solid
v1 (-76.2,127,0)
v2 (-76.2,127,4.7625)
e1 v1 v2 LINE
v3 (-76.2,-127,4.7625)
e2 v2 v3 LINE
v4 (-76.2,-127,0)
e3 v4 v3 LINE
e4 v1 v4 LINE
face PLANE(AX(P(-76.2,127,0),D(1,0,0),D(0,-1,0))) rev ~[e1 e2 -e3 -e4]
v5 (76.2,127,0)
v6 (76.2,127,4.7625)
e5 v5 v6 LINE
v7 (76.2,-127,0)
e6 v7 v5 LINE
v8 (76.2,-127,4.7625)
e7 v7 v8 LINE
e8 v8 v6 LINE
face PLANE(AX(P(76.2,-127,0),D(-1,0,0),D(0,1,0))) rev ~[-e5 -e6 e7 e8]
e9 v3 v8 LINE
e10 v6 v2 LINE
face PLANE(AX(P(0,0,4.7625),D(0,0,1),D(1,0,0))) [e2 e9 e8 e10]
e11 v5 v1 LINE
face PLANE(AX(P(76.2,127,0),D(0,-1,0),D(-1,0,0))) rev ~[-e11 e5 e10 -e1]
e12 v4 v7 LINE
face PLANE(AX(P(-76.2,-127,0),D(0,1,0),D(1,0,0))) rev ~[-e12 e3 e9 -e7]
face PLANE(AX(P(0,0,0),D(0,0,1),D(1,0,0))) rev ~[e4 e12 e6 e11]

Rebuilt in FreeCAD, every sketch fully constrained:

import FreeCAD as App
import Part
import Sketcher
from FreeCAD import Vector
Q = App.Units.Quantity


def add_polygon(sketch, points):
    """Adds a closed chain of lines whose ends are joined by coincident constraints."""
    first, n = sketch.GeometryCount, len(points)
    for a, b in zip(points, points[1:] + points[:1]):
        sketch.addGeometry(Part.LineSegment(App.Vector(*a, 0), App.Vector(*b, 0)), False)
    for i in range(n):
        sketch.addConstraint(Sketcher.Constraint("Coincident", first + i, 2, first + (i + 1) % n, 1))

doc = App.newDocument("Part")
body = doc.addObject("PartDesign::Body", "Body")

sketch1 = body.newObject("Sketcher::SketchObject", "Sketch")
sketch1.AttachmentSupport = (doc.getObject("XY_Plane"), [""])
sketch1.MapMode = "FlatFace"
add_polygon(sketch1, [(-76, 127), (-76, -127), (76, -127), (76, 127)])
sketch1.addConstraint([
    Sketcher.Constraint("Vertical", 0),
    Sketcher.Constraint("Horizontal", 1),
    Sketcher.Constraint("Vertical", 2),
    Sketcher.Constraint("Horizontal", 3),
    Sketcher.Constraint("Symmetric", 0, 2, 2, 2, -1, 1),
    Sketcher.Constraint("DistanceX", 1, 1, 1, 2, Q("6 in")),
    Sketcher.Constraint("DistanceY", 0, 2, 0, 1, Q("10 in")),
])
pad1 = body.newObject("PartDesign::Pad", "Pad")
pad1.Profile = sketch1
pad1.Length = Q("0.1875 in")

doc.recompute()
